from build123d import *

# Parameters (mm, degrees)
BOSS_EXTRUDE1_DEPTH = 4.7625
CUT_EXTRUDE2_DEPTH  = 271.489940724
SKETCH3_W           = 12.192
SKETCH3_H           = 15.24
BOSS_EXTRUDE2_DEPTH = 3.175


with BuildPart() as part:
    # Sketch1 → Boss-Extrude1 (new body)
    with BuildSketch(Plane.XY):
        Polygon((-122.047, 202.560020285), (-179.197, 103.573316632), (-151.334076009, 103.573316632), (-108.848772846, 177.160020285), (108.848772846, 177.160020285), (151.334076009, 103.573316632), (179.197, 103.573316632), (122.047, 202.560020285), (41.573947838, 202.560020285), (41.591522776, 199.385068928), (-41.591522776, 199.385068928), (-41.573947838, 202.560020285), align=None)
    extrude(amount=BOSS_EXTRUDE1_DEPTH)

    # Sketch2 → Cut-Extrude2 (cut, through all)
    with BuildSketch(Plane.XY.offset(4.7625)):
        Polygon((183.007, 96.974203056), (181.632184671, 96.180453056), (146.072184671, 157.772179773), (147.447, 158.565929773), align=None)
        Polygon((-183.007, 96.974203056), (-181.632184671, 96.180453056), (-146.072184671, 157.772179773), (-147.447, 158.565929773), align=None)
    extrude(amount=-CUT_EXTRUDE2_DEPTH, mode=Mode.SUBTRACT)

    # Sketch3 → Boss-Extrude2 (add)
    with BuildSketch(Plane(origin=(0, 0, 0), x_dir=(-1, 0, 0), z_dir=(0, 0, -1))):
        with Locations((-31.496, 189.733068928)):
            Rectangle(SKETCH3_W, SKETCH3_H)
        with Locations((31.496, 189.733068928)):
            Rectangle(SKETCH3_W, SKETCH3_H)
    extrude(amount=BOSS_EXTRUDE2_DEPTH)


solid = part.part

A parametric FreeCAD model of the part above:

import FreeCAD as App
import Part
import Sketcher

V = App.Vector
Q = App.Units.Quantity


def add_polygon(sketch, points):
    """Adds a closed chain of lines whose ends are joined by coincident constraints."""
    first, n = sketch.GeometryCount, len(points)
    for a, b in zip(points, points[1:] + points[:1]):
        sketch.addGeometry(Part.LineSegment(App.Vector(*a, 0), App.Vector(*b, 0)), False)
    for i in range(n):
        sketch.addConstraint(Sketcher.Constraint("Coincident", first + i, 2, first + (i + 1) % n, 1))

doc = App.newDocument("Part")
body = doc.addObject("PartDesign::Body", "Body")

# Sketch on XY plane
sketch1 = doc.addObject("Sketcher::SketchObject", "Sketch")
body.addObject(sketch1)
sketch1.AttachmentSupport = (doc.XY_Plane, [""])
sketch1.MapMode = "FlatFace"
add_polygon(sketch1, [(-122.047, 202.56002), (-179.197, 103.573317), (-151.334076, 103.573317), (-108.848773, 177.16002), (108.848773, 177.16002), (151.334076, 103.573317), (179.197, 103.573317), (122.047, 202.56002), (41.573948, 202.56002), (41.591523, 199.385069), (-41.591523, 199.385069), (-41.573948, 202.56002)])  # lines 0-11
sketch1.addConstraint([
    Sketcher.Constraint("Horizontal", 1),
    Sketcher.Constraint("Horizontal", 3),
    Sketcher.Constraint("Horizontal", 5),
    Sketcher.Constraint("Horizontal", 7),
    Sketcher.Constraint("Horizontal", 9),
    Sketcher.Constraint("Horizontal", 11),
    Sketcher.Constraint("Symmetric", 1, 2, 4, 2, -2),
    Sketcher.Constraint("Symmetric", 7, 2, 10, 2, -2),
    Sketcher.Constraint("Parallel", 0, 2),
    Sketcher.Constraint("Parallel", 4, 6),
    Sketcher.Constraint("Equal", 1, 5),
    Sketcher.Constraint("Equal", 7, 11),
    Sketcher.Constraint("Equal", 8, 10),
    Sketcher.Constraint("Angle", 0, Q("-120 deg")),
    Sketcher.Constraint("DistanceY", 3, 2, 6, 2, Q("1 in")),
    Sketcher.Constraint("Distance", 0, Q("4.5 in")),
    Sketcher.Constraint("DistanceX", 0, 2, 5, 2, Q("14.11 in")),
    Sketcher.Constraint("Distance", 8, Q("0.125 in")),
    Sketcher.Constraint("DistanceX", 1, 1, 1, 2, 27.862924),
    Sketcher.Constraint("DistanceX", 7, 2, 7, 1, 80.473052),
    Sketcher.Constraint("DistanceX", 9, 2, 9, 1, 83.183046),
    Sketcher.Constraint("DistanceY", -1, 1, 2, 2, 177.16002),
])
pad1 = doc.addObject("PartDesign::Pad", "Pad")
body.addObject(pad1)
pad1.Profile = sketch1
pad1.Length = Q("0.1875 in")

# Sketch on XY plane
sketch2 = doc.addObject("Sketcher::SketchObject", "Sketch001")
body.addObject(sketch2)
sketch2.AttachmentSupport = (doc.XY_Plane, [""])
sketch2.MapMode = "FlatFace"
sketch2.AttachmentOffset = App.Placement(V(0, 0, 0.1875 * 25.4), App.Rotation())
add_polygon(sketch2, [(181.632185, 96.180453), (183.007, 96.974203), (147.447, 158.56593), (146.072185, 157.77218)])  # lines 0-3
add_polygon(sketch2, [(-183.007, 96.974203), (-181.632185, 96.180453), (-146.072185, 157.77218), (-147.447, 158.56593)])  # lines 4-7
sketch2.addConstraint([
    Sketcher.Constraint("Symmetric", 3, 2, 4, 2, -2),
    Sketcher.Constraint("Symmetric", 2, 2, 5, 2, -2),
    Sketcher.Constraint("Symmetric", 1, 2, 6, 2, -2),
    Sketcher.Constraint("Symmetric", 0, 2, 7, 2, -2),
    Sketcher.Constraint("Perpendicular", 0, 1),
    Sketcher.Constraint("Perpendicular", 1, 2),
    Sketcher.Constraint("Perpendicular", 2, 3),
    Sketcher.Constraint("Angle", 0, Q("30 deg")),
    Sketcher.Constraint("Distance", 1, Q("2.8 in")),
    Sketcher.Constraint("DistanceX", 6, 2, 1, 2, Q("11.61 in")),
    Sketcher.Constraint("Distance", 0, Q("0.0625 in")),
    Sketcher.Constraint("DistanceY", -1, 1, 1, 2, 158.56593),
])
pocket1 = doc.addObject("PartDesign::Pocket", "Pocket")
body.addObject(pocket1)
pocket1.Profile = sketch2
pocket1.Type = "ThroughAll"

# Sketch on XY plane
sketch3 = doc.addObject("Sketcher::SketchObject", "Sketch002")
body.addObject(sketch3)
sketch3.AttachmentSupport = (doc.XY_Plane, [""])
sketch3.MapMode = "FlatFace"
add_polygon(sketch3, [(37.592, 197.353069), (37.592, 182.113069), (25.4, 182.113069), (25.4, 197.353069)])  # lines 0-3
add_polygon(sketch3, [(-25.4, 197.353069), (-25.4, 182.113069), (-37.592, 182.113069), (-37.592, 197.353069)])  # lines 4-7
sketch3.addConstraint([
    Sketcher.Constraint("Vertical", 0),
    Sketcher.Constraint("Horizontal", 1),
    Sketcher.Constraint("Vertical", 2),
    Sketcher.Constraint("Horizontal", 3),
    Sketcher.Constraint("Vertical", 4),
    Sketcher.Constraint("Horizontal", 5),
    Sketcher.Constraint("Vertical", 6),
    Sketcher.Constraint("Horizontal", 7),
    Sketcher.Constraint("Symmetric", 1, 2, 4, 2, -2),
    Sketcher.Constraint("Symmetric", 3, 2, 6, 2, -2),
    Sketcher.Constraint("DistanceY", 0, 2, 0, 1, Q("0.6 in")),
    Sketcher.Constraint("DistanceX", -1, 1, 1, 2, Q("1 in")),
    Sketcher.Constraint("DistanceX", 1, 2, 1, 1, Q("0.48 in")),
    Sketcher.Constraint("DistanceY", -1, 1, 0, 2, 182.113069),
])
pad2 = doc.addObject("PartDesign::Pad", "Pad001")
body.addObject(pad2)
pad2.Profile = sketch3
pad2.Length = Q("0.125 in")
pad2.Reversed = True

doc.recompute()
